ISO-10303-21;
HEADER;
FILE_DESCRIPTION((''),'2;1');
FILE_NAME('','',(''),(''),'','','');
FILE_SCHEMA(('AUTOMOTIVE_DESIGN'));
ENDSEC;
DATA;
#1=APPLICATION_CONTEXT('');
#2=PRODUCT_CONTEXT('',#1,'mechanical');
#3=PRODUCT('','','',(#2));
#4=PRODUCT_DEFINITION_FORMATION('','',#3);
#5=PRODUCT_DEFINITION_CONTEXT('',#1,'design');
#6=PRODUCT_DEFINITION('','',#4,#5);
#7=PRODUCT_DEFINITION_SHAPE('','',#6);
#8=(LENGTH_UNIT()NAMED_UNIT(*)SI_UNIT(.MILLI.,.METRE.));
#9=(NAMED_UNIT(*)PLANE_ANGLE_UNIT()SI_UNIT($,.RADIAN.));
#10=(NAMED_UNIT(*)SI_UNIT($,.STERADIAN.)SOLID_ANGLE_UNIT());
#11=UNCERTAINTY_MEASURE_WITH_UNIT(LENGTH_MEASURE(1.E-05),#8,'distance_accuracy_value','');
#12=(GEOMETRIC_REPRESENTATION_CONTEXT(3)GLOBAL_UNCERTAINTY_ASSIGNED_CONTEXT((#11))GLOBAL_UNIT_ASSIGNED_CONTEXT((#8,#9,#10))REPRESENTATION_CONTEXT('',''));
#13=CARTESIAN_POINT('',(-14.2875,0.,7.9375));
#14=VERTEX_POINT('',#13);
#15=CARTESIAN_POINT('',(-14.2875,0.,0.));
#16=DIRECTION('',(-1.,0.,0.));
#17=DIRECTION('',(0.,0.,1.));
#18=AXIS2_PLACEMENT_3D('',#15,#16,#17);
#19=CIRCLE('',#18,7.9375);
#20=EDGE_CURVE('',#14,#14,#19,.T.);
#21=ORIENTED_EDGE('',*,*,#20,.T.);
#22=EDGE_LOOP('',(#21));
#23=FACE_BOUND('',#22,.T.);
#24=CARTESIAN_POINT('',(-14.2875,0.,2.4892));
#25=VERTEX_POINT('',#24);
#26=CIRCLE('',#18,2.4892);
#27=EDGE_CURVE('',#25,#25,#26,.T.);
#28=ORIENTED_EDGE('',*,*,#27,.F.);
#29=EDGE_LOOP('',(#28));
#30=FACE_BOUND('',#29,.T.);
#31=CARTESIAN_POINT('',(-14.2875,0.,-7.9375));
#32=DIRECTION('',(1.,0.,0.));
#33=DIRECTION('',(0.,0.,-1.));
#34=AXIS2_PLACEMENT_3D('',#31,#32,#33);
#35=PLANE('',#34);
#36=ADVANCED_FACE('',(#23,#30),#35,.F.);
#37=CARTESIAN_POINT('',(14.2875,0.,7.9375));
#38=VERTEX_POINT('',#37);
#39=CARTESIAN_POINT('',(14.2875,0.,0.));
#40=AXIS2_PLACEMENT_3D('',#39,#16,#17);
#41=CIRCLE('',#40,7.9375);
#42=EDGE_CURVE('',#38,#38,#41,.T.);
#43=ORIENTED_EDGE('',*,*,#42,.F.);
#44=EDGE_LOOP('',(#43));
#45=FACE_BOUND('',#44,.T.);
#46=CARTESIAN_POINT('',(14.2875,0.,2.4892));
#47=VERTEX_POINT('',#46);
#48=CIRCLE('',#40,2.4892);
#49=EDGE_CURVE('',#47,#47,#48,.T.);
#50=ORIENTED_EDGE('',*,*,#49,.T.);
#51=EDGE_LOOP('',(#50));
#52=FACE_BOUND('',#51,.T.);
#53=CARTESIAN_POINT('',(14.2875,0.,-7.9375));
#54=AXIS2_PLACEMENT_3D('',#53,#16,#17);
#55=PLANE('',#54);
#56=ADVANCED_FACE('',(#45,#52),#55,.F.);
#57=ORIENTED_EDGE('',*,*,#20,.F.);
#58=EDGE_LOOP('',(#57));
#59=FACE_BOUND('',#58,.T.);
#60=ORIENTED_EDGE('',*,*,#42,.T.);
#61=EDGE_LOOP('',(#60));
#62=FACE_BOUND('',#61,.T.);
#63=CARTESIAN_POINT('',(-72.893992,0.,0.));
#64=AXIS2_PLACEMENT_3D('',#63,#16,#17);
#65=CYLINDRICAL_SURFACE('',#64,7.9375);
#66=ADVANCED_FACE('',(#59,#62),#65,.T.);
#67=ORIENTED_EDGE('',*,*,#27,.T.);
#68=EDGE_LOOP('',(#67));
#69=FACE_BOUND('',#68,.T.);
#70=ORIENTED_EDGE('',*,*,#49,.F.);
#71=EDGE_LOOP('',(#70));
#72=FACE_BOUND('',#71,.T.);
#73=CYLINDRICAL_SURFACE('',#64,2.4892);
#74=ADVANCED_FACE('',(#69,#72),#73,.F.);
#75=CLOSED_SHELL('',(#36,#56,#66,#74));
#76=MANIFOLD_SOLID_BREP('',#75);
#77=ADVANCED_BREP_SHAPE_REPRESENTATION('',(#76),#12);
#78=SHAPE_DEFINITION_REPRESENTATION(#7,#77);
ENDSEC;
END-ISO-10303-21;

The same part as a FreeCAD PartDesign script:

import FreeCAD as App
import Part
import Sketcher

V = App.Vector
Q = App.Units.Quantity


def add_polygon(sketch, points):
    """Adds a closed chain of lines whose ends are joined by coincident constraints."""
    first, n = sketch.GeometryCount, len(points)
    for a, b in zip(points, points[1:] + points[:1]):
        sketch.addGeometry(Part.LineSegment(App.Vector(*a, 0), App.Vector(*b, 0)), False)
    for i in range(n):
        sketch.addConstraint(Sketcher.Constraint("Coincident", first + i, 2, first + (i + 1) % n, 1))

doc = App.newDocument("Part")
body = doc.addObject("PartDesign::Body", "Body")

sketch1 = doc.addObject("Sketcher::SketchObject", "Sketch")
body.addObject(sketch1)
sketch1.AttachmentSupport = (doc.XZ_Plane, [""])
sketch1.MapMode = "FlatFace"
add_polygon(sketch1, [(-14.2875, -7.9375), (-14.2875, -2.4892), (14.2875, -2.4892), (14.2875, -7.9375)])
sketch1.addConstraint(Sketcher.Constraint("Vertical", 0))
sketch1.addConstraint(Sketcher.Constraint("Horizontal", 1))
sketch1.addConstraint(Sketcher.Constraint("Vertical", 2))
sketch1.addConstraint(Sketcher.Constraint("Horizontal", 3))
sketch1.addConstraint(Sketcher.Constraint("DistanceX", 1, 1, 1, 2, Q("1.125 in")))
sketch1.addConstraint(Sketcher.Constraint("DistanceY", 0, 1, 0, 2, Q("0.2145 in")))
sketch1.addConstraint(Sketcher.Constraint("DistanceX", 0, 2, -1, 1, Q("0.5625 in")))
sketch1.addConstraint(Sketcher.Constraint("DistanceY", 0, 2, -1, 1, Q("0.098 in")))
revolution = doc.addObject("PartDesign::Revolution", "Revolution")
body.addObject(revolution)
revolution.Profile = sketch1
revolution.ReferenceAxis = (sketch1, ["H_Axis"])
revolution.Angle = 360

doc.recompute()
